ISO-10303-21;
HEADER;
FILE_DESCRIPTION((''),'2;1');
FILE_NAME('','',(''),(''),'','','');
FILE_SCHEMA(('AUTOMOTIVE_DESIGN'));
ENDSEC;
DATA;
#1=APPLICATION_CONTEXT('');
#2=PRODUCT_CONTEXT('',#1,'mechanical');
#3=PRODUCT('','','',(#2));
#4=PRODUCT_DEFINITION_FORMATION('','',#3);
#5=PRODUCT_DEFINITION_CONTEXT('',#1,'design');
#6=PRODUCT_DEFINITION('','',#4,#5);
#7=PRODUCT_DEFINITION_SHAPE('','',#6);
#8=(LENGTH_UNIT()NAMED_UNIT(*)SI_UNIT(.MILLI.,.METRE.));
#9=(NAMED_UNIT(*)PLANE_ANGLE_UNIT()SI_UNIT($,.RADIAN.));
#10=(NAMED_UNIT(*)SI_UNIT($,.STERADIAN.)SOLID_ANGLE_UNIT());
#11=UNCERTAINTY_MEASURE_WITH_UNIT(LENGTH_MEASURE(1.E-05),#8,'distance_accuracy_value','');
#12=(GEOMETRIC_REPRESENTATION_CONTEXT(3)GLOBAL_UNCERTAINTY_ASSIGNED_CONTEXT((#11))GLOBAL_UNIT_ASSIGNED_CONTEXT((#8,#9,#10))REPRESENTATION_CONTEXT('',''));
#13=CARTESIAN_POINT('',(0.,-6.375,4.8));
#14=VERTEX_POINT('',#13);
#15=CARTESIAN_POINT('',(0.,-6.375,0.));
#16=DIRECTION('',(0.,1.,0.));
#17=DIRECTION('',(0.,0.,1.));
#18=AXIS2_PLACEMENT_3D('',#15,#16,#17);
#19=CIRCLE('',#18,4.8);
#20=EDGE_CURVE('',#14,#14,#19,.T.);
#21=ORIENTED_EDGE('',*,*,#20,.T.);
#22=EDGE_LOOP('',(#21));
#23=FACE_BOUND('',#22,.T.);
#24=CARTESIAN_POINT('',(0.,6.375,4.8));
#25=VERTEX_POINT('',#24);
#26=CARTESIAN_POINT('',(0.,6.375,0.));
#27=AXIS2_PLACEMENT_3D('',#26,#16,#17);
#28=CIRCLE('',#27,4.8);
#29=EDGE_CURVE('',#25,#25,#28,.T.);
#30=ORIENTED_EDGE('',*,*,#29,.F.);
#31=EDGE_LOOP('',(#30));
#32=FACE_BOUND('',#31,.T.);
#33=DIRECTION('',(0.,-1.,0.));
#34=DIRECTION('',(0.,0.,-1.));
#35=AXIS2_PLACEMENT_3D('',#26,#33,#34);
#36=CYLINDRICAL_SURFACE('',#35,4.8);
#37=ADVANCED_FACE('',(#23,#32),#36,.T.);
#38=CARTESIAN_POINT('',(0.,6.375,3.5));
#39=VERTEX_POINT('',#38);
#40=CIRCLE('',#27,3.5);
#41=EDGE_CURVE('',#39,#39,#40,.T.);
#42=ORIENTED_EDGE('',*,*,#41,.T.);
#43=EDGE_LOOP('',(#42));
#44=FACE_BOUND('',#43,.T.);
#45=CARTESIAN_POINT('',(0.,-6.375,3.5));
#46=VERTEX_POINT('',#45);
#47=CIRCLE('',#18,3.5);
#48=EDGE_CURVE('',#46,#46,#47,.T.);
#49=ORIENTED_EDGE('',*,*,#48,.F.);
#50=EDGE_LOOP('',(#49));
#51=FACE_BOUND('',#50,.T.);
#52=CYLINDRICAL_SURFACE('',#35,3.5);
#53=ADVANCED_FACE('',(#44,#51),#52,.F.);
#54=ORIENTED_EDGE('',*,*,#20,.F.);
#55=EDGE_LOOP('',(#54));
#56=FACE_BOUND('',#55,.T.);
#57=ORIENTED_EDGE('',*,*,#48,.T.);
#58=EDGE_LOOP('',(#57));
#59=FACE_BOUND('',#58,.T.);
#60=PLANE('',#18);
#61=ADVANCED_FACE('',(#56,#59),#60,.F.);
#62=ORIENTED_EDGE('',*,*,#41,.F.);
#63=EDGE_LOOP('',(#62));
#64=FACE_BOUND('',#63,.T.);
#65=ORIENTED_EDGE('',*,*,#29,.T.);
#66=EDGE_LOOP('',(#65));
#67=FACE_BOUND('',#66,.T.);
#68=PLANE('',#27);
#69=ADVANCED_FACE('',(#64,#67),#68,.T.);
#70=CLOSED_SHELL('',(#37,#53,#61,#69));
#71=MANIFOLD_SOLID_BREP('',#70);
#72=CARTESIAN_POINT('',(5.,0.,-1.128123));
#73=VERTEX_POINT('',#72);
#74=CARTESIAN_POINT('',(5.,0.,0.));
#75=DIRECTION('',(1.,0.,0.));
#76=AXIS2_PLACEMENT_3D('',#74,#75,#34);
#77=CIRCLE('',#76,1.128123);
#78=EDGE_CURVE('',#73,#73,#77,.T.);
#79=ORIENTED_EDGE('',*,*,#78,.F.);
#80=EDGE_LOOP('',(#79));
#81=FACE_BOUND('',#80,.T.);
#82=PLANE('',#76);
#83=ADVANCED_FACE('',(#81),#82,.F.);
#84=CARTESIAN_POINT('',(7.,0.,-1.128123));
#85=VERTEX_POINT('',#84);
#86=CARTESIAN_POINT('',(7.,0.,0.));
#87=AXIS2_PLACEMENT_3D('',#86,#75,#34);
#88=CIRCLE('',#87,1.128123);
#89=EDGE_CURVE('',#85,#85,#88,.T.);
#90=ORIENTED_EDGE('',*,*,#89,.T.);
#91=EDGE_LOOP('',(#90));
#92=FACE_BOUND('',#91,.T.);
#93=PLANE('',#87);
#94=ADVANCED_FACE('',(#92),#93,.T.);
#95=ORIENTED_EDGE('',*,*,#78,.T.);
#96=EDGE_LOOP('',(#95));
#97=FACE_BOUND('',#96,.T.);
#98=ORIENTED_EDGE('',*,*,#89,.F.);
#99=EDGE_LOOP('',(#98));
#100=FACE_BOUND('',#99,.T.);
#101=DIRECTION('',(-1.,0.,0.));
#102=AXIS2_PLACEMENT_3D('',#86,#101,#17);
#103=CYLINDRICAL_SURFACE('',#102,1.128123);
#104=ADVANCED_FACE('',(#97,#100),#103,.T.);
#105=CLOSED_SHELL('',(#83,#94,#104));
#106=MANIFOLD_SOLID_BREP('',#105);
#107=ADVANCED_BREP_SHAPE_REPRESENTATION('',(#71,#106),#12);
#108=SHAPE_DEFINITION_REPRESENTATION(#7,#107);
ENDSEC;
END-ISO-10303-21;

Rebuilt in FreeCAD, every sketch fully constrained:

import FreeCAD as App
import Part
import Sketcher

V = App.Vector

doc = App.newDocument("Part")
params = doc.addObject("Spreadsheet::Sheet", "Params")
for row, (alias, value) in enumerate([
    ("sketch1_diameter", "7 mm"),
    ("sketch1_diameter2", "9.6 mm"),
    ("pad1_length", "12.75 mm"),
    ("pad2_length", "2 mm"),
], start=1):
    params.set(f"A{row}", alias)
    params.set(f"B{row}", "=" + value)
    params.setAlias(f"B{row}", alias)

body = doc.addObject("PartDesign::Body", "Body")

sketch1 = body.newObject("Sketcher::SketchObject", "Sketch")
sketch1.AttachmentSupport = (doc.getObject("XZ_Plane"), [""])
sketch1.MapMode = "FlatFace"
sketch1.addGeometry(Part.Circle(V(0, 0, 0), V(0, 0, 1), 4.8), False)
sketch1.addGeometry(Part.Circle(V(0, 0, 0), V(0, 0, 1), 3.5), False)
sketch1.addConstraint(Sketcher.Constraint("Coincident", 0, 3, -1, 1))
sketch1.addConstraint(Sketcher.Constraint("Coincident", 1, 3, -1, 1))
sketch1.addConstraint(Sketcher.Constraint("Diameter", 1, 7.0))
sketch1.addConstraint(Sketcher.Constraint("Diameter", 0, 9.6))
sketch1.setExpression("Constraints[2]", "Params.sketch1_diameter")
sketch1.setExpression("Constraints[3]", "Params.sketch1_diameter2")
pad1 = body.newObject("PartDesign::Pad", "Pad")
pad1.Profile = sketch1
pad1.setExpression("Length", "Params.pad1_length")
pad1.Midplane = True
body2 = doc.addObject("PartDesign::Body", "Body001")

sketch2 = body2.newObject("Sketcher::SketchObject", "Sketch001")
sketch2.AttachmentSupport = (doc.getObject("YZ_Plane001"), [""])
sketch2.MapMode = "FlatFace"
sketch2.AttachmentOffset = App.Placement(V(0, 0, 5), App.Rotation())
sketch2.addGeometry(Part.Circle(V(0, 0, 0), V(0, 0, 1), 1.1), False)
sketch2.addConstraint(Sketcher.Constraint("Coincident", 0, 3, -1, 1))
sketch2.addConstraint(Sketcher.Constraint("Diameter", 0, 2.256247))
pad2 = body2.newObject("PartDesign::Pad", "Pad001")
pad2.Profile = sketch2
pad2.setExpression("Length", "Params.pad2_length")

doc.recompute()
